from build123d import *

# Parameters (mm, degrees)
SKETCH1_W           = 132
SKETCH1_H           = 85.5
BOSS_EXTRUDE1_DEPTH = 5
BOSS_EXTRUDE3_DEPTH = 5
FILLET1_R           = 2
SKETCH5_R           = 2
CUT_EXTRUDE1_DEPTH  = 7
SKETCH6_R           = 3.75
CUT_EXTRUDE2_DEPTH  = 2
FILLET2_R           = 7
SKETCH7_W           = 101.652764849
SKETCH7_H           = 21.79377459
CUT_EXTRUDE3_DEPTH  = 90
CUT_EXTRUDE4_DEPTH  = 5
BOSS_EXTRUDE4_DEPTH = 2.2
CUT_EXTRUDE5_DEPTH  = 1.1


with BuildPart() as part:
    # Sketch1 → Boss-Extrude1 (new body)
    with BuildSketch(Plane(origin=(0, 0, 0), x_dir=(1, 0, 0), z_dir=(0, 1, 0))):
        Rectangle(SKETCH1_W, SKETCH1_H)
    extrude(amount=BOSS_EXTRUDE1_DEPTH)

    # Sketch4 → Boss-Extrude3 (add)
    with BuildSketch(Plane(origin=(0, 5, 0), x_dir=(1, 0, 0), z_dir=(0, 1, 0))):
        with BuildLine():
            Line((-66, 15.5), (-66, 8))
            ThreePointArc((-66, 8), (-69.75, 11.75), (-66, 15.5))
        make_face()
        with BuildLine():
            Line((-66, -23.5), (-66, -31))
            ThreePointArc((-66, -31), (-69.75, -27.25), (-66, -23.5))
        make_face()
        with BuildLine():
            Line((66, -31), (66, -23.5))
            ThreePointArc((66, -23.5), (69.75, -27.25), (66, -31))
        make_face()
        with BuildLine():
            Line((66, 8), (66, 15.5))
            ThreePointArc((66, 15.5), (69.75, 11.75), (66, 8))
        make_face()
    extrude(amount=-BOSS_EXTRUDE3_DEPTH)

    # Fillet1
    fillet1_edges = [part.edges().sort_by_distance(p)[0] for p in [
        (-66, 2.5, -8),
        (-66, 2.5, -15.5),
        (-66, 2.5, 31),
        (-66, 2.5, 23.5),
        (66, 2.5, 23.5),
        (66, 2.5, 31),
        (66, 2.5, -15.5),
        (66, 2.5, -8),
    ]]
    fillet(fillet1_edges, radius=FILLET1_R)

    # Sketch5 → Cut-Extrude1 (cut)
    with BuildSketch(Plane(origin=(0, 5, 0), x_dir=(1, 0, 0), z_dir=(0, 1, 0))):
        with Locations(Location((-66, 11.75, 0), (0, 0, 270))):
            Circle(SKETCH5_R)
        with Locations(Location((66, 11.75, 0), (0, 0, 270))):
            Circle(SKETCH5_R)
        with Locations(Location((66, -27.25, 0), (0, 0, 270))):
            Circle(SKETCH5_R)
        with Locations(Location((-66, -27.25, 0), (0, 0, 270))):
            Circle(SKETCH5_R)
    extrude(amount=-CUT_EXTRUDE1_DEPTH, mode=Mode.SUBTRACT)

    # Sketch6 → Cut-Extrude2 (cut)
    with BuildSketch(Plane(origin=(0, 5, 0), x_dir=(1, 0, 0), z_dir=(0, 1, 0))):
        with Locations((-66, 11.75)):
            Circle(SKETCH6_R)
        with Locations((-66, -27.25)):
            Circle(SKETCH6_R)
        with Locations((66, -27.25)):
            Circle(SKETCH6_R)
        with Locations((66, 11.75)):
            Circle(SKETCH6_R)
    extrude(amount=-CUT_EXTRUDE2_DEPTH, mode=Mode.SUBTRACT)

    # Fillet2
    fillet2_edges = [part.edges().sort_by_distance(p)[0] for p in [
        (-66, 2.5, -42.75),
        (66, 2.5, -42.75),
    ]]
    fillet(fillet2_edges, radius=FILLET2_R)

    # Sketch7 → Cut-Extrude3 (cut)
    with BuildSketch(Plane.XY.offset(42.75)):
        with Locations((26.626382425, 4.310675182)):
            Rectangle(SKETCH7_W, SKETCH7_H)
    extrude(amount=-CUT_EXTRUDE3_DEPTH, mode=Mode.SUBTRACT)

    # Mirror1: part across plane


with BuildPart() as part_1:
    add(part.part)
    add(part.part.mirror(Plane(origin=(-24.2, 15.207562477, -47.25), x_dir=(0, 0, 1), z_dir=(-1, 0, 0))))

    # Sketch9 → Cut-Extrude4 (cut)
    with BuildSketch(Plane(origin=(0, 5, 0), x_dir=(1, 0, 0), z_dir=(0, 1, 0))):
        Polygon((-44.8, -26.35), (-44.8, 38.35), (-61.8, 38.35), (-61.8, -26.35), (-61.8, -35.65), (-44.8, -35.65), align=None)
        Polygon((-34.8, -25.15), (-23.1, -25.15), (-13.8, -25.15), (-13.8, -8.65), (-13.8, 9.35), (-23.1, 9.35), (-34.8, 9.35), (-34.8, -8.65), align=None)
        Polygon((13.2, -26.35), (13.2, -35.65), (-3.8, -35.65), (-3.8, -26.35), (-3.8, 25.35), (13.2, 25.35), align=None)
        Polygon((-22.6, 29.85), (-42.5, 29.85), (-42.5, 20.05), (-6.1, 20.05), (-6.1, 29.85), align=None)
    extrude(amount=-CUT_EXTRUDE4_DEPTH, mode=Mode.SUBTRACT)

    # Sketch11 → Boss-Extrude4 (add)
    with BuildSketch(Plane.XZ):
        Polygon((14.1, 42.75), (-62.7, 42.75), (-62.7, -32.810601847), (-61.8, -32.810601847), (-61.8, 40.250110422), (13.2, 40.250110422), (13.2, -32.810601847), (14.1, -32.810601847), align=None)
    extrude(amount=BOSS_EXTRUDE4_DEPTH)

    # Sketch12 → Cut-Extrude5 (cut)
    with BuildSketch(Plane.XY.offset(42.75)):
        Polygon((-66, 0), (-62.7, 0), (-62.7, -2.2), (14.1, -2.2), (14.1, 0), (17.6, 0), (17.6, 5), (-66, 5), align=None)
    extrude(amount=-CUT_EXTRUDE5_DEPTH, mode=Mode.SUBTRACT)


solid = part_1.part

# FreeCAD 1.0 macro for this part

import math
import FreeCAD as App
import Part
import Sketcher

V = App.Vector


def edges_at(feature, points):
    """Names of the edges that pass closest to the given points."""
    edges = feature.Shape.Edges
    near = lambda p: min(range(len(edges)), key=lambda i: edges[i].distToShape(Part.Vertex(*p))[0])
    return sorted({f"Edge{near(p) + 1}" for p in points})


def add_polygon(sketch, points):
    """Adds a closed chain of lines whose ends are joined by coincident constraints."""
    first, n = sketch.GeometryCount, len(points)
    for a, b in zip(points, points[1:] + points[:1]):
        sketch.addGeometry(Part.LineSegment(App.Vector(*a, 0), App.Vector(*b, 0)), False)
    for i in range(n):
        sketch.addConstraint(Sketcher.Constraint("Coincident", first + i, 2, first + (i + 1) % n, 1))

doc = App.newDocument("Part")
params = doc.addObject("Spreadsheet::Sheet", "Params")
for row, (alias, value) in enumerate([
    ("sketch1_width", "132 mm"),
    ("sketch1_height", "85.5 mm"),
    ("pad1_length", "5 mm"),
    ("sketch2_radius", "3.75 mm"),
    ("pad2_length", "5 mm"),
    ("fillet_radius", "2 mm"),
    ("sketch3_diameter", "4 mm"),
    ("pocket1_length", "7 mm"),
    ("sketch4_diameter", "7.5 mm"),
    ("pocket2_length", "2 mm"),
    ("fillet2_radius", "7 mm"),
    ("pocket3_length", "90 mm"),
    ("sketch6_width", "17 mm"),
    ("sketch6_width2", "21 mm"),
    ("sketch6_height", "74 mm"),
    ("sketch6_height2", "61 mm"),
    ("sketch6_width3", "36.4 mm"),
    ("pocket4_length", "5 mm"),
    ("sketch7_width", "75 mm"),
    ("sketch7_width2", "76.8 mm"),
    ("pad3_length", "2.2 mm"),
    ("sketch8_height", "5 mm"),
    ("sketch8_width", "3.3 mm"),
    ("sketch8_width2", "76.8 mm"),
    ("sketch8_width3", "3.5 mm"),
    ("sketch8_height2", "2.2 mm"),
    ("pocket5_length", "1.1 mm"),
], start=1):
    params.set(f"A{row}", alias)
    params.set(f"B{row}", "=" + value)
    params.setAlias(f"B{row}", alias)

body = doc.addObject("PartDesign::Body", "Body")

# Sketch on XZ plane
sketch1 = body.newObject("Sketcher::SketchObject", "Sketch")
sketch1.AttachmentSupport = (doc.getObject("XZ_Plane"), [""])
sketch1.MapMode = "FlatFace"
add_polygon(sketch1, [(-66, -43), (-66, 43), (66, 43), (66, -43)])  # lines 0-3
sketch1.addConstraint(Sketcher.Constraint("Vertical", 0))
sketch1.addConstraint(Sketcher.Constraint("Horizontal", 1))
sketch1.addConstraint(Sketcher.Constraint("Vertical", 2))
sketch1.addConstraint(Sketcher.Constraint("Horizontal", 3))
sketch1.addConstraint(Sketcher.Constraint("Symmetric", 0, 2, 2, 2, -1, 1))
sketch1.addConstraint(Sketcher.Constraint("DistanceX", 1, 1, 1, 2, 132.0))
sketch1.addConstraint(Sketcher.Constraint("DistanceY", 0, 1, 0, 2, 85.5))
sketch1.setExpression("Constraints[9]", "Params.sketch1_width")
sketch1.setExpression("Constraints[10]", "Params.sketch1_height")
pad1 = body.newObject("PartDesign::Pad", "Pad")
pad1.Profile = sketch1
pad1.setExpression("Length", "Params.pad1_length")
pad1.Reversed = True

# Sketch on XZ plane
sketch2 = body.newObject("Sketcher::SketchObject", "Sketch001")
sketch2.AttachmentSupport = (doc.getObject("XZ_Plane"), [""])
sketch2.MapMode = "FlatFace"
sketch2.AttachmentOffset = App.Placement(V(0, 0, -5), App.Rotation())
sketch2.addGeometry(Part.LineSegment(V(-66, -8, 0), V(-66, -15.5, 0)), False)
sketch2.addGeometry(Part.ArcOfCircle(Part.Circle(V(-66, -11.8, 0), V(0, 0, 1), 3.8), math.radians(90), math.radians(270)), False)
sketch2.addGeometry(Part.LineSegment(V(-66, 31, 0), V(-66, 23.5, 0)), False)
sketch2.addGeometry(Part.ArcOfCircle(Part.Circle(V(-66, 27.2, 0), V(0, 0, 1), 3.8), math.radians(90), math.radians(270)), False)
sketch2.addGeometry(Part.LineSegment(V(66, 23.5, 0), V(66, 31, 0)), False)
sketch2.addGeometry(Part.ArcOfCircle(Part.Circle(V(66, 27.2, 0), V(0, 0, 1), 3.8), math.radians(-90), math.radians(90)), False)
sketch2.addGeometry(Part.LineSegment(V(66, -15.5, 0), V(66, -8, 0)), False)
sketch2.addGeometry(Part.ArcOfCircle(Part.Circle(V(66, -11.8, 0), V(0, 0, 1), 3.8), math.radians(-90), math.radians(90)), False)
sketch2.addConstraint(Sketcher.Constraint("Coincident", 0, 1, 1, 1))
sketch2.addConstraint(Sketcher.Constraint("Coincident", 1, 2, 0, 2))
sketch2.addConstraint(Sketcher.Constraint("Coincident", 2, 1, 3, 1))
sketch2.addConstraint(Sketcher.Constraint("Coincident", 3, 2, 2, 2))
sketch2.addConstraint(Sketcher.Constraint("Coincident", 4, 1, 5, 1))
sketch2.addConstraint(Sketcher.Constraint("Coincident", 5, 2, 4, 2))
sketch2.addConstraint(Sketcher.Constraint("Coincident", 6, 1, 7, 1))
sketch2.addConstraint(Sketcher.Constraint("Coincident", 7, 2, 6, 2))
sketch2.addConstraint(Sketcher.Constraint("Vertical", 0))
sketch2.addConstraint(Sketcher.Constraint("Vertical", 2))
sketch2.addConstraint(Sketcher.Constraint("Vertical", 4))
sketch2.addConstraint(Sketcher.Constraint("Vertical", 6))
sketch2.addConstraint(Sketcher.Constraint("Equal", 1, 3))
sketch2.addConstraint(Sketcher.Constraint("Equal", 3, 5))
sketch2.addConstraint(Sketcher.Constraint("Equal", 5, 7))
sketch2.addConstraint(Sketcher.Constraint("Symmetric", 3, 3, 5, 3, -2))
sketch2.addConstraint(Sketcher.Constraint("Symmetric", 1, 3, 7, 3, -2))
sketch2.addConstraint(Sketcher.Constraint("Vertical", 1, 3, 3, 3))
sketch2.addConstraint(Sketcher.Constraint("Vertical", 3, 3, 0, 1))
sketch2.addConstraint(Sketcher.Constraint("Vertical", 1, 2, 2, 1))
sketch2.addConstraint(Sketcher.Constraint("Vertical", 7, 3, 4, 1))
sketch2.addConstraint(Sketcher.Constraint("Vertical", 5, 2, 6, 1))
sketch2.addConstraint(Sketcher.Constraint("Radius", 1, 3.75))
sketch2.addConstraint(Sketcher.Constraint("DistanceX", 1, 3, -1, 1, 66.0))
sketch2.addConstraint(Sketcher.Constraint("DistanceY", 0, 1, -1, 1, 8.0))
sketch2.addConstraint(Sketcher.Constraint("DistanceY", -1, 1, 2, 1, 31.0))
sketch2.setExpression("Constraints[22]", "Params.sketch2_radius")
pad2 = body.newObject("PartDesign::Pad", "Pad001")
pad2.Profile = sketch2
pad2.setExpression("Length", "Params.pad2_length")
doc.recompute()

fillet = body.newObject("PartDesign::Fillet", "Fillet")
fillet.Base = (pad2, edges_at(pad2, [
    (-66, 2.5, -8),
    (-66, 2.5, -15.5),
    (-66, 2.5, 31),
    (-66, 2.5, 23.5),
    (66, 2.5, 23.5),
    (66, 2.5, 31),
    (66, 2.5, -15.5),
    (66, 2.5, -8),
]))
fillet.setExpression("Radius", "Params.fillet_radius")

# Sketch on XZ plane
sketch3 = body.newObject("Sketcher::SketchObject", "Sketch002")
sketch3.AttachmentSupport = (doc.getObject("XZ_Plane"), [""])
sketch3.MapMode = "FlatFace"
sketch3.AttachmentOffset = App.Placement(V(0, 0, -5), App.Rotation())
sketch3.addGeometry(Part.Circle(V(-66, -11.8, 0), V(0, 0, 1), 2), False)
sketch3.addGeometry(Part.Circle(V(66, -11.8, 0), V(0, 0, 1), 2), False)
sketch3.addGeometry(Part.Circle(V(66, 27.2, 0), V(0, 0, 1), 2), False)
sketch3.addGeometry(Part.Circle(V(-66, 27.2, 0), V(0, 0, 1), 2), False)
sketch3.addConstraint(Sketcher.Constraint("Equal", 0, 1))
sketch3.addConstraint(Sketcher.Constraint("Equal", 1, 2))
sketch3.addConstraint(Sketcher.Constraint("Equal", 2, 3))
sketch3.addConstraint(Sketcher.Constraint("Symmetric", 0, 3, 1, 3, -2))
sketch3.addConstraint(Sketcher.Constraint("Symmetric", 2, 3, 3, 3, -2))
sketch3.addConstraint(Sketcher.Constraint("Vertical", 1, 3, 2, 3))
sketch3.addConstraint(Sketcher.Constraint("Diameter", 0, 4.0))
sketch3.addConstraint(Sketcher.Constraint("DistanceX", 0, 3, -1, 1, 66.0))
sketch3.addConstraint(Sketcher.Constraint("DistanceY", 1, 3, 2, 3, 39.0))
sketch3.addConstraint(Sketcher.Constraint("DistanceY", 0, 3, -1, 1, 11.75))
sketch3.setExpression("Constraints[6]", "Params.sketch3_diameter")
pocket1 = body.newObject("PartDesign::Pocket", "Pocket")
pocket1.Profile = sketch3
pocket1.setExpression("Length", "Params.pocket1_length")
pocket1.Reversed = True

# Sketch on XZ plane
sketch4 = body.newObject("Sketcher::SketchObject", "Sketch003")
sketch4.AttachmentSupport = (doc.getObject("XZ_Plane"), [""])
sketch4.MapMode = "FlatFace"
sketch4.AttachmentOffset = App.Placement(V(0, 0, -5), App.Rotation())
sketch4.addGeometry(Part.Circle(V(-66, -11.8, 0), V(0, 0, 1), 3.8), False)
sketch4.addGeometry(Part.Circle(V(-66, 27.2, 0), V(0, 0, 1), 3.8), False)
sketch4.addGeometry(Part.Circle(V(66, 27.2, 0), V(0, 0, 1), 3.8), False)
sketch4.addGeometry(Part.Circle(V(66, -11.8, 0), V(0, 0, 1), 3.8), False)
sketch4.addConstraint(Sketcher.Constraint("Equal", 0, 1))
sketch4.addConstraint(Sketcher.Constraint("Equal", 1, 2))
sketch4.addConstraint(Sketcher.Constraint("Equal", 2, 3))
sketch4.addConstraint(Sketcher.Constraint("Symmetric", 1, 3, 2, 3, -2))
sketch4.addConstraint(Sketcher.Constraint("Symmetric", 0, 3, 3, 3, -2))
sketch4.addConstraint(Sketcher.Constraint("Vertical", 0, 3, 1, 3))
sketch4.addConstraint(Sketcher.Constraint("Diameter", 0, 7.5))
sketch4.addConstraint(Sketcher.Constraint("DistanceX", 0, 3, -1, 1, 66.0))
sketch4.addConstraint(Sketcher.Constraint("DistanceY", 0, 3, 1, 3, 39.0))
sketch4.addConstraint(Sketcher.Constraint("DistanceY", 0, 3, -1, 1, 11.75))
sketch4.setExpression("Constraints[6]", "Params.sketch4_diameter")
pocket2 = body.newObject("PartDesign::Pocket", "Pocket001")
pocket2.Profile = sketch4
pocket2.setExpression("Length", "Params.pocket2_length")
pocket2.Reversed = True
doc.recompute()

fillet2 = body.newObject("PartDesign::Fillet", "Fillet001")
fillet2.Base = (pocket2, edges_at(pocket2, [(-66, 2.5, -42.75), (66, 2.5, -42.75)]))
fillet2.setExpression("Radius", "Params.fillet2_radius")

# Sketch on XY plane
sketch5 = body.newObject("Sketcher::SketchObject", "Sketch004")
sketch5.AttachmentSupport = (doc.getObject("XY_Plane"), [""])
sketch5.MapMode = "FlatFace"
sketch5.AttachmentOffset = App.Placement(V(0, 0, 42.75), App.Rotation())
add_polygon(sketch5, [(-24, 15), (-24, -7), (77, -7), (77, 15)])  # lines 0-3
sketch5.addConstraint(Sketcher.Constraint("Vertical", 0))
sketch5.addConstraint(Sketcher.Constraint("Horizontal", 1))
sketch5.addConstraint(Sketcher.Constraint("Vertical", 2))
sketch5.addConstraint(Sketcher.Constraint("Horizontal", 3))
sketch5.addConstraint(Sketcher.Constraint("DistanceX", 0, 2, -1, 1, 24.2))
sketch5.addConstraint(Sketcher.Constraint("DistanceX", 1, 1, 1, 2, 101.652765))
sketch5.addConstraint(Sketcher.Constraint("DistanceY", 0, 2, 0, 1, 21.793775))
sketch5.addConstraint(Sketcher.Constraint("DistanceY", 0, 2, -1, 1, 6.586212))
pocket3 = body.newObject("PartDesign::Pocket", "Pocket002")
pocket3.Profile = sketch5
pocket3.setExpression("Length", "Params.pocket3_length")
body2 = doc.addObject("PartDesign::Body", "Body001")
doc.recompute()

body2.BaseFeature = body
doc.recompute()

mirroring = doc.addObject("Part::Mirroring", "Mirroring")
mirroring.Source = body
mirroring.Base = V(-24.2, 15.207562, -47.25)
mirroring.Normal = V(-1, 0, 0)
body3 = doc.addObject("PartDesign::Body", "Body002")
body3.BaseFeature = mirroring
boolean = body2.newObject("PartDesign::Boolean", "Boolean")
boolean.Type = "Fuse"
boolean.addObjects([body3])
doc.recompute()

# Sketch on XZ plane
sketch6 = body2.newObject("Sketcher::SketchObject", "Sketch005")
sketch6.AttachmentSupport = (doc.getObject("XZ_Plane001"), [""])
sketch6.MapMode = "FlatFace"
sketch6.AttachmentOffset = App.Placement(V(0, 0, -5), App.Rotation())
add_polygon(sketch6, [(-45, -38), (-62, -38), (-62, 36), (-45, 36)])  # lines 0-3
add_polygon(sketch6, [(-35, 25), (-14, 25), (-14, -9), (-35, -9)])  # lines 4-7
add_polygon(sketch6, [(13, 36), (13, -25), (-4, -25), (-4, 36)])  # lines 8-11
add_polygon(sketch6, [(-42, -30), (-42, -20), (-6, -20), (-6, -30)])  # lines 12-15
sketch6.addConstraint(Sketcher.Constraint("Horizontal", 0))
sketch6.addConstraint(Sketcher.Constraint("Vertical", 1))
sketch6.addConstraint(Sketcher.Constraint("Horizontal", 2))
sketch6.addConstraint(Sketcher.Constraint("Vertical", 3))
sketch6.addConstraint(Sketcher.Constraint("Horizontal", 4))
sketch6.addConstraint(Sketcher.Constraint("Vertical", 5))
sketch6.addConstraint(Sketcher.Constraint("Horizontal", 6))
sketch6.addConstraint(Sketcher.Constraint("Vertical", 7))
sketch6.addConstraint(Sketcher.Constraint("Vertical", 8))
sketch6.addConstraint(Sketcher.Constraint("Horizontal", 9))
sketch6.addConstraint(Sketcher.Constraint("Vertical", 10))
sketch6.addConstraint(Sketcher.Constraint("Horizontal", 11))
sketch6.addConstraint(Sketcher.Constraint("Vertical", 12))
sketch6.addConstraint(Sketcher.Constraint("Horizontal", 13))
sketch6.addConstraint(Sketcher.Constraint("Vertical", 14))
sketch6.addConstraint(Sketcher.Constraint("Horizontal", 15))
sketch6.addConstraint(Sketcher.Constraint("Horizontal", 2, 2, 10, 2))
sketch6.addConstraint(Sketcher.Constraint("Equal", 2, 9))
sketch6.addConstraint(Sketcher.Constraint("DistanceX", 0, 2, 0, 1, 17.0))
sketch6.addConstraint(Sketcher.Constraint("DistanceX", 4, 1, 4, 2, 21.0))
sketch6.addConstraint(Sketcher.Constraint("DistanceY", 1, 1, 1, 2, 74.0))
sketch6.addConstraint(Sketcher.Constraint("DistanceY", 8, 2, 8, 1, 61.0))
sketch6.addConstraint(Sketcher.Constraint("DistanceX", 13, 1, 13, 2, 36.4))
sketch6.addConstraint(Sketcher.Constraint("DistanceY", 5, 2, 5, 1, 34.5))
sketch6.addConstraint(Sketcher.Constraint("DistanceY", 12, 1, 12, 2, 9.8))
sketch6.addConstraint(Sketcher.Constraint("DistanceX", 2, 2, 4, 2, 31.0))
sketch6.addConstraint(Sketcher.Constraint("DistanceY", 3, 2, 5, 2, 29.0))
sketch6.addConstraint(Sketcher.Constraint("DistanceX", 5, 2, 8, 2, 27.0))
sketch6.addConstraint(Sketcher.Constraint("DistanceX", 0, 2, -1, 1, 61.8))
sketch6.addConstraint(Sketcher.Constraint("DistanceX", 12, 2, -1, 1, 42.5))
sketch6.addConstraint(Sketcher.Constraint("DistanceY", 12, 2, 6, 2, 10.7))
sketch6.addConstraint(Sketcher.Constraint("DistanceY", 0, 2, -1, 1, 38.35))
sketch6.setExpression("Constraints[34]", "Params.sketch6_width")
sketch6.setExpression("Constraints[35]", "Params.sketch6_width2")
sketch6.setExpression("Constraints[36]", "Params.sketch6_height")
sketch6.setExpression("Constraints[37]", "Params.sketch6_height2")
sketch6.setExpression("Constraints[38]", "Params.sketch6_width3")
pocket4 = body2.newObject("PartDesign::Pocket", "Pocket003")
pocket4.Profile = sketch6
pocket4.setExpression("Length", "Params.pocket4_length")
pocket4.Reversed = True

# Sketch on XZ plane
sketch7 = body2.newObject("Sketcher::SketchObject", "Sketch006")
sketch7.AttachmentSupport = (doc.getObject("XZ_Plane001"), [""])
sketch7.MapMode = "FlatFace"
add_polygon(sketch7, [(14.1, 42.8), (-62.7, 42.8), (-62.7, -32.8), (-61.8, -32.8), (-61.8, 40.3), (13.2, 40.3), (13.2, -32.8), (14.1, -32.8)])  # lines 0-7
sketch7.addConstraint(Sketcher.Constraint("Horizontal", 0))
sketch7.addConstraint(Sketcher.Constraint("Vertical", 1))
sketch7.addConstraint(Sketcher.Constraint("Horizontal", 2))
sketch7.addConstraint(Sketcher.Constraint("Vertical", 3))
sketch7.addConstraint(Sketcher.Constraint("Horizontal", 4))
sketch7.addConstraint(Sketcher.Constraint("Vertical", 5))
sketch7.addConstraint(Sketcher.Constraint("Horizontal", 6))
sketch7.addConstraint(Sketcher.Constraint("Vertical", 7))
sketch7.addConstraint(Sketcher.Constraint("Horizontal", 2, 2, 5, 2))
sketch7.addConstraint(Sketcher.Constraint("Equal", 2, 6))
sketch7.addConstraint(Sketcher.Constraint("DistanceX", 4, 1, 4, 2, 75.0))
sketch7.addConstraint(Sketcher.Constraint("DistanceX", 0, 2, 0, 1, 76.8))
sketch7.addConstraint(Sketcher.Constraint("DistanceX", 0, 2, -1, 1, 62.7))
sketch7.addConstraint(Sketcher.Constraint("DistanceY", -1, 1, 0, 2, 42.75))
sketch7.addConstraint(Sketcher.Constraint("DistanceY", 1, 2, 1, 1, 75.560602))
sketch7.addConstraint(Sketcher.Constraint("DistanceY", 3, 1, 3, 2, 73.060712))
sketch7.setExpression("Constraints[18]", "Params.sketch7_width")
sketch7.setExpression("Constraints[19]", "Params.sketch7_width2")
pad3 = body2.newObject("PartDesign::Pad", "Pad002")
pad3.Profile = sketch7
pad3.setExpression("Length", "Params.pad3_length")

# Sketch on XY plane
sketch8 = body2.newObject("Sketcher::SketchObject", "Sketch007")
sketch8.AttachmentSupport = (doc.getObject("XY_Plane001"), [""])
sketch8.MapMode = "FlatFace"
sketch8.AttachmentOffset = App.Placement(V(0, 0, 42.75), App.Rotation())
add_polygon(sketch8, [(-66, 0), (-62.7, 0), (-62.7, -2.2), (14.1, -2.2), (14.1, 0), (17.6, 0), (17.6, 5), (-66, 5)])  # lines 0-7
sketch8.addConstraint(Sketcher.Constraint("Horizontal", 0))
sketch8.addConstraint(Sketcher.Constraint("Vertical", 1))
sketch8.addConstraint(Sketcher.Constraint("Horizontal", 2))
sketch8.addConstraint(Sketcher.Constraint("Vertical", 3))
sketch8.addConstraint(Sketcher.Constraint("Horizontal", 4))
sketch8.addConstraint(Sketcher.Constraint("Vertical", 5))
sketch8.addConstraint(Sketcher.Constraint("Horizontal", 6))
sketch8.addConstraint(Sketcher.Constraint("Vertical", 7))
sketch8.addConstraint(Sketcher.Constraint("PointOnObject", 0, 2, -1))
sketch8.addConstraint(Sketcher.Constraint("PointOnObject", 3, 2, -1))
sketch8.addConstraint(Sketcher.Constraint("DistanceY", 5, 1, 5, 2, 5.0))
sketch8.addConstraint(Sketcher.Constraint("DistanceX", 0, 1, 0, 2, 3.3))
sketch8.addConstraint(Sketcher.Constraint("DistanceX", 2, 1, 2, 2, 76.8))
sketch8.addConstraint(Sketcher.Constraint("DistanceX", 4, 1, 4, 2, 3.5))
sketch8.addConstraint(Sketcher.Constraint("DistanceY", 1, 2, 1, 1, 2.2))
sketch8.addConstraint(Sketcher.Constraint("DistanceX", 6, 2, -1, 1, 66.0))
sketch8.setExpression("Constraints[18]", "Params.sketch8_height")
sketch8.setExpression("Constraints[19]", "Params.sketch8_width")
sketch8.setExpression("Constraints[20]", "Params.sketch8_width2")
sketch8.setExpression("Constraints[21]", "Params.sketch8_width3")
sketch8.setExpression("Constraints[22]", "Params.sketch8_height2")
pocket5 = body2.newObject("PartDesign::Pocket", "Pocket004")
pocket5.Profile = sketch8
pocket5.setExpression("Length", "Params.pocket5_length")
mirroring.Visibility = False

doc.recompute()
